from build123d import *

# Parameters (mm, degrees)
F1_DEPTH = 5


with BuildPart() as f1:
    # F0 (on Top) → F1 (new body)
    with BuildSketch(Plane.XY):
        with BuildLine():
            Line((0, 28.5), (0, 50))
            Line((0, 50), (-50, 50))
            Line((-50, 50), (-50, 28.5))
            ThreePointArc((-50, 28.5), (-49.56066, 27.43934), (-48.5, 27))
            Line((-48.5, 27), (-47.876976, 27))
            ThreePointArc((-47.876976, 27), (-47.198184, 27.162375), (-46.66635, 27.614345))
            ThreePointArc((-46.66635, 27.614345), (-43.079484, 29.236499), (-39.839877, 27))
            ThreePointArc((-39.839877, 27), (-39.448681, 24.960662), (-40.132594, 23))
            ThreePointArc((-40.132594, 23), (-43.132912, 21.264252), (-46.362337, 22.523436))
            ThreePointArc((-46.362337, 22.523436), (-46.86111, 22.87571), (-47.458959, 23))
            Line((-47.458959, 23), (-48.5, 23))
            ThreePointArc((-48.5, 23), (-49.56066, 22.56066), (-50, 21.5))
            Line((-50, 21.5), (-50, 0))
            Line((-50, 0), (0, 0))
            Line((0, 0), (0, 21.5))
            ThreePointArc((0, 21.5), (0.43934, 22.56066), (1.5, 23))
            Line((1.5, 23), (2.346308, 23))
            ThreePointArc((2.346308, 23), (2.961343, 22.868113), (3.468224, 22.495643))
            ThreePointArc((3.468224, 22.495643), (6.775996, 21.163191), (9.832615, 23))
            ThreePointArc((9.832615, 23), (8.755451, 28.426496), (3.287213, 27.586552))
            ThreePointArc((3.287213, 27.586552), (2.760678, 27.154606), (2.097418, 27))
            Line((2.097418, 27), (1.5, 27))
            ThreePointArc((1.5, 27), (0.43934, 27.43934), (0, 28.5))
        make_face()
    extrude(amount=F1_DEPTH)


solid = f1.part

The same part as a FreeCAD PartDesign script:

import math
import FreeCAD as App
import Part
import Sketcher

doc = App.newDocument("Part")
body = doc.addObject("PartDesign::Body", "Body")

sketch1 = doc.addObject("Sketcher::SketchObject", "Sketch")
body.addObject(sketch1)
sketch1.AttachmentSupport = (doc.XY_Plane, [""])
sketch1.MapMode = "FlatFace"
sketch1.addGeometry(Part.LineSegment(App.Vector(0, 28.5, 0), App.Vector(0, 50, 0)), False)
sketch1.addGeometry(Part.LineSegment(App.Vector(0, 50, 0), App.Vector(-50, 50, 0)), False)
sketch1.addGeometry(Part.LineSegment(App.Vector(-50, 50, 0), App.Vector(-50, 28.5, 0)), False)
sketch1.addGeometry(Part.ArcOfCircle(Part.Circle(App.Vector(-48.5, 28.5, 0), App.Vector(0, 0, 1), 1.5), math.radians(-180), math.radians(-90)), False)
sketch1.addGeometry(Part.LineSegment(App.Vector(-48.5, 27, 0), App.Vector(-47.9, 27, 0)), False)
sketch1.addGeometry(Part.ArcOfCircle(Part.Circle(App.Vector(-47.9, 28.5, 0), App.Vector(0, 0, 1), 1.5), math.radians(-90), math.radians(-36)), False)
sketch1.addGeometry(Part.ArcOfCircle(Part.Circle(App.Vector(-43.4, 25.3, 0), App.Vector(0, 0, 1), 4), math.radians(26), math.radians(144)), False)
sketch1.addGeometry(Part.ArcOfCircle(Part.Circle(App.Vector(-43.4, 25.3, 0), App.Vector(0, 0, 1), 4), math.radians(-34), math.radians(26)), False)
sketch1.addGeometry(Part.ArcOfCircle(Part.Circle(App.Vector(-43.4, 25.3, 0), App.Vector(0, 0, 1), 4), math.radians(-137), math.radians(-34)), False)
sketch1.addGeometry(Part.ArcOfCircle(Part.Circle(App.Vector(-47.5, 21.5, 0), App.Vector(0, 0, 1), 1.5), math.radians(43), math.radians(90)), False)
sketch1.addGeometry(Part.LineSegment(App.Vector(-47.5, 23, 0), App.Vector(-48.5, 23, 0)), False)
sketch1.addGeometry(Part.ArcOfCircle(Part.Circle(App.Vector(-48.5, 21.5, 0), App.Vector(0, 0, 1), 1.5), math.radians(90), math.radians(180)), False)
sketch1.addGeometry(Part.LineSegment(App.Vector(-50, 21.5, 0), App.Vector(-50, 0, 0)), False)
sketch1.addGeometry(Part.LineSegment(App.Vector(-50, 0, 0), App.Vector(0, 0, 0)), False)
sketch1.addGeometry(Part.LineSegment(App.Vector(0, 0, 0), App.Vector(0, 21.5, 0)), False)
sketch1.addGeometry(Part.ArcOfCircle(Part.Circle(App.Vector(1.5, 21.5, 0), App.Vector(0, 0, 1), 1.5), math.radians(90), math.radians(180)), False)
sketch1.addGeometry(Part.LineSegment(App.Vector(1.5, 23, 0), App.Vector(2.3, 23, 0)), False)
sketch1.addGeometry(Part.ArcOfCircle(Part.Circle(App.Vector(2.3, 21.5, 0), App.Vector(0, 0, 1), 1.5), math.radians(42), math.radians(90)), False)
sketch1.addGeometry(Part.ArcOfCircle(Part.Circle(App.Vector(6.5, 25.2, 0), App.Vector(0, 0, 1), 4), math.radians(-138), math.radians(-33)), False)
sketch1.addGeometry(Part.ArcOfCircle(Part.Circle(App.Vector(6.5, 25.2, 0), App.Vector(0, 0, 1), 4), math.radians(-33), math.radians(142)), False)
sketch1.addGeometry(Part.ArcOfCircle(Part.Circle(App.Vector(2.1, 28.5, 0), App.Vector(0, 0, 1), 1.5), math.radians(-90), math.radians(-38)), False)
sketch1.addGeometry(Part.LineSegment(App.Vector(2.1, 27, 0), App.Vector(1.5, 27, 0)), False)
sketch1.addGeometry(Part.ArcOfCircle(Part.Circle(App.Vector(1.5, 28.5, 0), App.Vector(0, 0, 1), 1.5), math.radians(-180), math.radians(-90)), False)
sketch1.addConstraint(Sketcher.Constraint("Coincident", 0, 2, 1, 1))
sketch1.addConstraint(Sketcher.Constraint("Coincident", 1, 2, 2, 1))
sketch1.addConstraint(Sketcher.Constraint("Tangent", 2, 2, 3, 1))
sketch1.addConstraint(Sketcher.Constraint("Tangent", 3, 2, 4, 1))
sketch1.addConstraint(Sketcher.Constraint("Tangent", 4, 2, 5, 1))
sketch1.addConstraint(Sketcher.Constraint("Tangent", 5, 2, 6, 2))
sketch1.addConstraint(Sketcher.Constraint("Tangent", 6, 1, 7, 2))
sketch1.addConstraint(Sketcher.Constraint("Tangent", 7, 1, 8, 2))
sketch1.addConstraint(Sketcher.Constraint("Tangent", 8, 1, 9, 1))
sketch1.addConstraint(Sketcher.Constraint("Tangent", 9, 2, 10, 1))
sketch1.addConstraint(Sketcher.Constraint("Tangent", 10, 2, 11, 1))
sketch1.addConstraint(Sketcher.Constraint("Tangent", 11, 2, 12, 1))
sketch1.addConstraint(Sketcher.Constraint("Coincident", 12, 2, 13, 1))
sketch1.addConstraint(Sketcher.Constraint("Coincident", 13, 2, 14, 1))
sketch1.addConstraint(Sketcher.Constraint("Tangent", 14, 2, 15, 2))
sketch1.addConstraint(Sketcher.Constraint("Tangent", 15, 1, 16, 1))
sketch1.addConstraint(Sketcher.Constraint("Tangent", 16, 2, 17, 2))
sketch1.addConstraint(Sketcher.Constraint("Tangent", 17, 1, 18, 1))
sketch1.addConstraint(Sketcher.Constraint("Tangent", 18, 2, 19, 1))
sketch1.addConstraint(Sketcher.Constraint("Tangent", 19, 2, 20, 2))
sketch1.addConstraint(Sketcher.Constraint("Tangent", 20, 1, 21, 1))
sketch1.addConstraint(Sketcher.Constraint("Tangent", 21, 2, 22, 2))
sketch1.addConstraint(Sketcher.Constraint("Tangent", 22, 1, 0, 1))
sketch1.addConstraint(Sketcher.Constraint("Vertical", 0))
sketch1.addConstraint(Sketcher.Constraint("Horizontal", 1))
sketch1.addConstraint(Sketcher.Constraint("Vertical", 2))
sketch1.addConstraint(Sketcher.Constraint("Horizontal", 4))
sketch1.addConstraint(Sketcher.Constraint("Horizontal", 10))
sketch1.addConstraint(Sketcher.Constraint("Vertical", 12))
sketch1.addConstraint(Sketcher.Constraint("Horizontal", 13))
sketch1.addConstraint(Sketcher.Constraint("Vertical", 14))
sketch1.addConstraint(Sketcher.Constraint("Horizontal", 16))
sketch1.addConstraint(Sketcher.Constraint("Horizontal", 21))
sketch1.addConstraint(Sketcher.Constraint("Coincident", 13, 2, -1, 1))
sketch1.addConstraint(Sketcher.Constraint("Coincident", 8, 3, 6, 3))
sketch1.addConstraint(Sketcher.Constraint("Equal", 3, 5))
sketch1.addConstraint(Sketcher.Constraint("Equal", 5, 11))
sketch1.addConstraint(Sketcher.Constraint("Equal", 11, 15))
sketch1.addConstraint(Sketcher.Constraint("Equal", 9, 17))
sketch1.addConstraint(Sketcher.Constraint("Equal", 8, 18))
sketch1.addConstraint(Sketcher.Constraint("Equal", 18, 19))
sketch1.addConstraint(Sketcher.Constraint("Equal", 15, 20))
sketch1.addConstraint(Sketcher.Constraint("Equal", 20, 22))
sketch1.addConstraint(Sketcher.Constraint("PointOnObject", 0, 2, -2))
sketch1.addConstraint(Sketcher.Constraint("Horizontal", 11, 3, 15, 3))
sketch1.addConstraint(Sketcher.Constraint("Horizontal", 5, 3, 20, 3))
sketch1.addConstraint(Sketcher.Constraint("Horizontal", 4, 2, 6, 1))
sketch1.addConstraint(Sketcher.Constraint("Horizontal", 7, 1, 9, 2))
sketch1.addConstraint(Sketcher.Constraint("Horizontal", 16, 2, 18, 2))
sketch1.addConstraint(Sketcher.Constraint("Vertical", 3, 3, 11, 3))
sketch1.addConstraint(Sketcher.Constraint("Equal", 2, 12))
sketch1.addConstraint(Sketcher.Constraint("Radius", 6, 3.999999))
sketch1.addConstraint(Sketcher.Constraint("Radius", 3, 1.500001))
sketch1.addConstraint(Sketcher.Constraint("DistanceX", 1, 2, 1, 1, 50.0))
sketch1.addConstraint(Sketcher.Constraint("DistanceY", 0, 1, 0, 2, 21.5))
sketch1.addConstraint(Sketcher.Constraint("DistanceY", -1, 1, 0, 2, 50.0))
sketch1.addConstraint(Sketcher.Constraint("DistanceY", 9, 3, 5, 3, 6.999999))
sketch1.addConstraint(Sketcher.Constraint("DistanceX", -1, 1, 18, 3, 6.46))
sketch1.addConstraint(Sketcher.Constraint("DistanceX", 10, 2, 10, 1, 1.041041))
sketch1.addConstraint(Sketcher.Constraint("DistanceX", 16, 1, 16, 2, 0.846308))
sketch1.addConstraint(Sketcher.Constraint("DistanceY", -1, 1, 6, 3, 25.2526))
pad1 = doc.addObject("PartDesign::Pad", "Pad")
body.addObject(pad1)
pad1.Profile = sketch1
pad1.Length = 5

doc.recompute()
